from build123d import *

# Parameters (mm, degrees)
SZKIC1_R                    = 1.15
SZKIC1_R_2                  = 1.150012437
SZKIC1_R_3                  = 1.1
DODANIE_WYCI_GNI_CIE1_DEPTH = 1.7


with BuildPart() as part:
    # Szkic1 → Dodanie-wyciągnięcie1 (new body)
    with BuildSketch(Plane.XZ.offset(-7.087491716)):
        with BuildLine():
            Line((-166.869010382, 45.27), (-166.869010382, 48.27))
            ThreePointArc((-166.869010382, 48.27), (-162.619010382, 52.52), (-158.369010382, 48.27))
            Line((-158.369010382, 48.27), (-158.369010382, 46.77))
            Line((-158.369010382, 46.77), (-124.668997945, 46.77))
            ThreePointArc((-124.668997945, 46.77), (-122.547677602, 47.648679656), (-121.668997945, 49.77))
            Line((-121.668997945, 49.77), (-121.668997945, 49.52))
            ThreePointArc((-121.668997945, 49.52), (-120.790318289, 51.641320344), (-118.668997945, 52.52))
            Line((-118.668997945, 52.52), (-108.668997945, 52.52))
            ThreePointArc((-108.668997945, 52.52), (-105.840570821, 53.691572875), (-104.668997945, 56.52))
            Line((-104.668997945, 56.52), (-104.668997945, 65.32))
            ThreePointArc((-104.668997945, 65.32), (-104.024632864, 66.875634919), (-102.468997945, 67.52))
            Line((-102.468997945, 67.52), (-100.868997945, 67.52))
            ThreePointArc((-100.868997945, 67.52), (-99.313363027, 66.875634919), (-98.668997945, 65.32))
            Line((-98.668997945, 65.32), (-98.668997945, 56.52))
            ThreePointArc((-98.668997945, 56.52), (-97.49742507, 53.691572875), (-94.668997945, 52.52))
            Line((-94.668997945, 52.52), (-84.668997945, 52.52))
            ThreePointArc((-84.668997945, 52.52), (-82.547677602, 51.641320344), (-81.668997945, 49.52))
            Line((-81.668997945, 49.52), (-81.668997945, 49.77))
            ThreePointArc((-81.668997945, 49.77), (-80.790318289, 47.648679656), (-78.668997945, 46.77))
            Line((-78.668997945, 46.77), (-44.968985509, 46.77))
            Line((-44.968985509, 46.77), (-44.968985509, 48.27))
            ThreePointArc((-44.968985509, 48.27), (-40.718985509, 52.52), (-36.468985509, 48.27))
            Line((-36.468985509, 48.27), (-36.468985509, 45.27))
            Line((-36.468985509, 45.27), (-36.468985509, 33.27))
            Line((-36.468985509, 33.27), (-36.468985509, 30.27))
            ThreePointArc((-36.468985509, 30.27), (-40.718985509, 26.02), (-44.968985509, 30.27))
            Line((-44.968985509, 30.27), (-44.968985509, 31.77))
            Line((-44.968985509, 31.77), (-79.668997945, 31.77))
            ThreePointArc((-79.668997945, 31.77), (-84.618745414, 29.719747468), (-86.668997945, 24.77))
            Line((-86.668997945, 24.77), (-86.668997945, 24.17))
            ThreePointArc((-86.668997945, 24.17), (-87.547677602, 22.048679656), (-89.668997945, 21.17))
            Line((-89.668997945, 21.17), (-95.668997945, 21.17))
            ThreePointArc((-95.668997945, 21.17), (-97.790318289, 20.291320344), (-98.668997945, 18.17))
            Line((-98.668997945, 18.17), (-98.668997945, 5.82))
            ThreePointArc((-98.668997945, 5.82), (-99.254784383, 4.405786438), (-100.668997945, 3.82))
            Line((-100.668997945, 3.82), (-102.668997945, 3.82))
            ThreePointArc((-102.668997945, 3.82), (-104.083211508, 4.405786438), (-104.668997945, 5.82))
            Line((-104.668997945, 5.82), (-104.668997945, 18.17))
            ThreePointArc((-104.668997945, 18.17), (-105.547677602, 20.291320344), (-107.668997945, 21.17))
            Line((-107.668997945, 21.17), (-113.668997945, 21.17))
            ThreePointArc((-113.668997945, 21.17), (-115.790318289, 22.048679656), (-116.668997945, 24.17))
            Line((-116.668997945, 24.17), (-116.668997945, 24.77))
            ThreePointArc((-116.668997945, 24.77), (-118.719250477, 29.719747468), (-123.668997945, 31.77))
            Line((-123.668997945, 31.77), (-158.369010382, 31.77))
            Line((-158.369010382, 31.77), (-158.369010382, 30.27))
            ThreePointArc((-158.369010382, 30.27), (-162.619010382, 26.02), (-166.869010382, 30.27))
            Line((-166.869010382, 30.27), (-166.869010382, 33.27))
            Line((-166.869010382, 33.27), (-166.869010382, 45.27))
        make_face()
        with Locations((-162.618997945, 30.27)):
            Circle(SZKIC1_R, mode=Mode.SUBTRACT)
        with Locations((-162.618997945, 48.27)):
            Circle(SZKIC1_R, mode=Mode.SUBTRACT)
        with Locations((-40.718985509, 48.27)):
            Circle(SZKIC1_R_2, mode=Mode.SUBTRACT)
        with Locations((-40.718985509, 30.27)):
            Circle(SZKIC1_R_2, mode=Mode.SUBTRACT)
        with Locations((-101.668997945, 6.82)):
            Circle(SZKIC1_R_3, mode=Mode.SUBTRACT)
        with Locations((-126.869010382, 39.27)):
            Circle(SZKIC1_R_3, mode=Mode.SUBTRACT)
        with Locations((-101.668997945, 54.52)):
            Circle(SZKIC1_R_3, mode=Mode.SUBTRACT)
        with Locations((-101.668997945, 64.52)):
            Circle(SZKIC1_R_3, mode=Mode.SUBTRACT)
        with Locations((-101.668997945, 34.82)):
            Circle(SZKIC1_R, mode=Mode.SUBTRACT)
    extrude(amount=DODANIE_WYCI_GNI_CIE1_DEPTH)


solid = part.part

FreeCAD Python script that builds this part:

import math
import FreeCAD as App
import Part
import Sketcher

doc = App.newDocument("Part")
body = doc.addObject("PartDesign::Body", "Body")

# Sketch on XZ plane
sketch1 = body.newObject("Sketcher::SketchObject", "Sketch")
sketch1.AttachmentSupport = (doc.getObject("XZ_Plane"), [""])
sketch1.MapMode = "FlatFace"
sketch1.AttachmentOffset = App.Placement(App.Vector(0, 0, -7.087492), App.Rotation())
sketch1.addGeometry([
    Part.ArcOfCircle(Part.Circle(App.Vector(-162.61901, 48.27, 0), App.Vector(0, 0, 1), 4.25), math.radians(0), math.radians(180)),  # 0
    Part.LineSegment(App.Vector(-166.86901, 48.27, 0), App.Vector(-166.86901, 30.27, 0)),  # 1
    Part.ArcOfCircle(Part.Circle(App.Vector(-162.61901, 30.27, 0), App.Vector(0, 0, 1), 4.25), math.radians(180), math.radians(360)),  # 2
    Part.LineSegment(App.Vector(-158.36901, 30.27, 0), App.Vector(-158.36901, 31.77, 0)),  # 3
    Part.LineSegment(App.Vector(-158.36901, 31.77, 0), App.Vector(-123.668998, 31.77, 0)),  # 4
    Part.ArcOfCircle(Part.Circle(App.Vector(-123.668998, 24.77, 0), App.Vector(0, 0, 1), 7), math.radians(0), math.radians(90)),  # 5
    Part.LineSegment(App.Vector(-116.668998, 24.77, 0), App.Vector(-116.668998, 24.17, 0)),  # 6
    Part.ArcOfCircle(Part.Circle(App.Vector(-113.668998, 24.17, 0), App.Vector(0, 0, 1), 3), math.radians(180), math.radians(270)),  # 7
    Part.LineSegment(App.Vector(-113.668998, 21.17, 0), App.Vector(-107.668998, 21.17, 0)),  # 8
    Part.ArcOfCircle(Part.Circle(App.Vector(-107.668998, 18.17, 0), App.Vector(0, 0, 1), 3), math.radians(0), math.radians(90)),  # 9
    Part.LineSegment(App.Vector(-104.668998, 18.17, 0), App.Vector(-104.668998, 5.82, 0)),  # 10
    Part.ArcOfCircle(Part.Circle(App.Vector(-102.668998, 5.82, 0), App.Vector(0, 0, 1), 2), math.radians(180), math.radians(270)),  # 11
    Part.LineSegment(App.Vector(-102.668998, 3.82, 0), App.Vector(-100.668998, 3.82, 0)),  # 12
    Part.ArcOfCircle(Part.Circle(App.Vector(-100.668998, 5.82, 0), App.Vector(0, 0, 1), 2), math.radians(-90), math.radians(0)),  # 13
    Part.LineSegment(App.Vector(-98.668998, 5.82, 0), App.Vector(-98.668998, 18.17, 0)),  # 14
    Part.ArcOfCircle(Part.Circle(App.Vector(-95.668998, 18.17, 0), App.Vector(0, 0, 1), 3), math.radians(90), math.radians(180)),  # 15
    Part.LineSegment(App.Vector(-95.668998, 21.17, 0), App.Vector(-89.668998, 21.17, 0)),  # 16
    Part.ArcOfCircle(Part.Circle(App.Vector(-89.668998, 24.17, 0), App.Vector(0, 0, 1), 3), math.radians(-90), math.radians(0)),  # 17
    Part.LineSegment(App.Vector(-86.668998, 24.17, 0), App.Vector(-86.668998, 24.77, 0)),  # 18
    Part.ArcOfCircle(Part.Circle(App.Vector(-79.668998, 24.77, 0), App.Vector(0, 0, 1), 7), math.radians(90), math.radians(180)),  # 19
    Part.LineSegment(App.Vector(-79.668998, 31.77, 0), App.Vector(-44.968986, 31.77, 0)),  # 20
    Part.LineSegment(App.Vector(-44.968986, 31.77, 0), App.Vector(-44.968986, 30.27, 0)),  # 21
    Part.ArcOfCircle(Part.Circle(App.Vector(-40.718986, 30.27, 0), App.Vector(0, 0, 1), 4.25), math.radians(180), math.radians(360)),  # 22
    Part.LineSegment(App.Vector(-36.468986, 30.27, 0), App.Vector(-36.468986, 48.27, 0)),  # 23
    Part.ArcOfCircle(Part.Circle(App.Vector(-40.718986, 48.27, 0), App.Vector(0, 0, 1), 4.25), math.radians(0), math.radians(180)),  # 24
    Part.LineSegment(App.Vector(-44.968986, 48.27, 0), App.Vector(-44.968986, 46.77, 0)),  # 25
    Part.LineSegment(App.Vector(-44.968986, 46.77, 0), App.Vector(-78.668998, 46.77, 0)),  # 26
    Part.ArcOfCircle(Part.Circle(App.Vector(-78.668998, 49.77, 0), App.Vector(0, 0, 1), 3), math.radians(180), math.radians(270)),  # 27
    Part.LineSegment(App.Vector(-81.668998, 49.77, 0), App.Vector(-81.668998, 49.52, 0)),  # 28
    Part.ArcOfCircle(Part.Circle(App.Vector(-84.668998, 49.52, 0), App.Vector(0, 0, 1), 3), math.radians(0), math.radians(90)),  # 29
    Part.LineSegment(App.Vector(-84.668998, 52.52, 0), App.Vector(-94.668998, 52.52, 0)),  # 30
    Part.ArcOfCircle(Part.Circle(App.Vector(-94.668998, 56.52, 0), App.Vector(0, 0, 1), 4), math.radians(180), math.radians(270)),  # 31
    Part.LineSegment(App.Vector(-98.668998, 56.52, 0), App.Vector(-98.668998, 65.32, 0)),  # 32
    Part.ArcOfCircle(Part.Circle(App.Vector(-100.868998, 65.32, 0), App.Vector(0, 0, 1), 2.2), math.radians(0), math.radians(90)),  # 33
    Part.LineSegment(App.Vector(-100.868998, 67.52, 0), App.Vector(-102.468998, 67.52, 0)),  # 34
    Part.ArcOfCircle(Part.Circle(App.Vector(-102.468998, 65.32, 0), App.Vector(0, 0, 1), 2.2), math.radians(90), math.radians(180)),  # 35
    Part.LineSegment(App.Vector(-104.668998, 65.32, 0), App.Vector(-104.668998, 56.52, 0)),  # 36
    Part.ArcOfCircle(Part.Circle(App.Vector(-108.668998, 56.52, 0), App.Vector(0, 0, 1), 4), math.radians(-90), math.radians(0)),  # 37
    Part.LineSegment(App.Vector(-108.668998, 52.52, 0), App.Vector(-118.668998, 52.52, 0)),  # 38
    Part.ArcOfCircle(Part.Circle(App.Vector(-118.668998, 49.52, 0), App.Vector(0, 0, 1), 3), math.radians(90), math.radians(180)),  # 39
    Part.LineSegment(App.Vector(-121.668998, 49.52, 0), App.Vector(-121.668998, 49.77, 0)),  # 40
    Part.ArcOfCircle(Part.Circle(App.Vector(-124.668998, 49.77, 0), App.Vector(0, 0, 1), 3), math.radians(-90), math.radians(0)),  # 41
    Part.LineSegment(App.Vector(-124.668998, 46.77, 0), App.Vector(-158.36901, 46.77, 0)),  # 42
    Part.LineSegment(App.Vector(-158.36901, 46.77, 0), App.Vector(-158.36901, 48.27, 0)),  # 43
    Part.Circle(App.Vector(-40.718986, 30.27, 0), App.Vector(0, 0, 1), 1.150012),  # 44
    Part.Circle(App.Vector(-101.668998, 6.82, 0), App.Vector(0, 0, 1), 1.1),  # 45
    Part.Circle(App.Vector(-101.668998, 34.82, 0), App.Vector(0, 0, 1), 1.15),  # 46
    Part.Circle(App.Vector(-162.618998, 30.27, 0), App.Vector(0, 0, 1), 1.15),  # 47
    Part.Circle(App.Vector(-40.718986, 48.27, 0), App.Vector(0, 0, 1), 1.150012),  # 48
    Part.Circle(App.Vector(-126.86901, 39.27, 0), App.Vector(0, 0, 1), 1.1),  # 49
    Part.Circle(App.Vector(-162.618998, 48.27, 0), App.Vector(0, 0, 1), 1.15),  # 50
    Part.Circle(App.Vector(-101.668998, 54.52, 0), App.Vector(0, 0, 1), 1.1),  # 51
    Part.Circle(App.Vector(-101.668998, 64.52, 0), App.Vector(0, 0, 1), 1.1),  # 52
], False)
sketch1.addConstraint([
    Sketcher.Constraint("Tangent", 0, 2, 1, 1),
    Sketcher.Constraint("Tangent", 1, 2, 2, 1),
    Sketcher.Constraint("Tangent", 2, 2, 3, 1),
    Sketcher.Constraint("Coincident", 3, 2, 4, 1),
    Sketcher.Constraint("Tangent", 4, 2, 5, 2),
    Sketcher.Constraint("Tangent", 5, 1, 6, 1),
    Sketcher.Constraint("Tangent", 6, 2, 7, 1),
    Sketcher.Constraint("Tangent", 7, 2, 8, 1),
    Sketcher.Constraint("Tangent", 8, 2, 9, 2),
    Sketcher.Constraint("Tangent", 9, 1, 10, 1),
    Sketcher.Constraint("Tangent", 10, 2, 11, 1),
    Sketcher.Constraint("Tangent", 11, 2, 12, 1),
    Sketcher.Constraint("Tangent", 12, 2, 13, 1),
    Sketcher.Constraint("Tangent", 13, 2, 14, 1),
    Sketcher.Constraint("Tangent", 14, 2, 15, 2),
    Sketcher.Constraint("Tangent", 15, 1, 16, 1),
    Sketcher.Constraint("Tangent", 16, 2, 17, 1),
    Sketcher.Constraint("Tangent", 17, 2, 18, 1),
    Sketcher.Constraint("Tangent", 18, 2, 19, 2),
    Sketcher.Constraint("Tangent", 19, 1, 20, 1),
    Sketcher.Constraint("Coincident", 20, 2, 21, 1),
    Sketcher.Constraint("Tangent", 21, 2, 22, 1),
    Sketcher.Constraint("Tangent", 22, 2, 23, 1),
    Sketcher.Constraint("Tangent", 23, 2, 24, 1),
    Sketcher.Constraint("Tangent", 24, 2, 25, 1),
    Sketcher.Constraint("Coincident", 25, 2, 26, 1),
    Sketcher.Constraint("Tangent", 26, 2, 27, 2),
    Sketcher.Constraint("Tangent", 27, 1, 28, 1),
    Sketcher.Constraint("Tangent", 28, 2, 29, 1),
    Sketcher.Constraint("Tangent", 29, 2, 30, 1),
    Sketcher.Constraint("Tangent", 30, 2, 31, 2),
    Sketcher.Constraint("Tangent", 31, 1, 32, 1),
    Sketcher.Constraint("Tangent", 32, 2, 33, 1),
    Sketcher.Constraint("Tangent", 33, 2, 34, 1),
    Sketcher.Constraint("Tangent", 34, 2, 35, 1),
    Sketcher.Constraint("Tangent", 35, 2, 36, 1),
    Sketcher.Constraint("Tangent", 36, 2, 37, 2),
    Sketcher.Constraint("Tangent", 37, 1, 38, 1),
    Sketcher.Constraint("Tangent", 38, 2, 39, 1),
    Sketcher.Constraint("Tangent", 39, 2, 40, 1),
    Sketcher.Constraint("Tangent", 40, 2, 41, 2),
    Sketcher.Constraint("Tangent", 41, 1, 42, 1),
    Sketcher.Constraint("Coincident", 42, 2, 43, 1),
    Sketcher.Constraint("Tangent", 43, 2, 0, 1),
    Sketcher.Constraint("Vertical", 1),
    Sketcher.Constraint("Vertical", 3),
    Sketcher.Constraint("Horizontal", 4),
    Sketcher.Constraint("Vertical", 6),
    Sketcher.Constraint("Horizontal", 8),
    Sketcher.Constraint("Vertical", 10),
    Sketcher.Constraint("Horizontal", 12),
    Sketcher.Constraint("Vertical", 14),
    Sketcher.Constraint("Horizontal", 16),
    Sketcher.Constraint("Vertical", 18),
    Sketcher.Constraint("Horizontal", 20),
    Sketcher.Constraint("Vertical", 21),
    Sketcher.Constraint("Vertical", 23),
    Sketcher.Constraint("Vertical", 25),
    Sketcher.Constraint("Horizontal", 26),
    Sketcher.Constraint("Vertical", 28),
    Sketcher.Constraint("Horizontal", 30),
    Sketcher.Constraint("Vertical", 32),
    Sketcher.Constraint("Horizontal", 34),
    Sketcher.Constraint("Vertical", 36),
    Sketcher.Constraint("Horizontal", 38),
    Sketcher.Constraint("Vertical", 40),
    Sketcher.Constraint("Horizontal", 42),
    Sketcher.Constraint("Vertical", 43),
    Sketcher.Constraint("Coincident", 44, 3, 22, 3),
    Sketcher.Constraint("Coincident", 48, 3, 24, 3),
    Sketcher.Constraint("Equal", 0, 2),
    Sketcher.Constraint("Equal", 7, 9),
    Sketcher.Constraint("Equal", 11, 13),
    Sketcher.Constraint("Equal", 9, 15),
    Sketcher.Constraint("Equal", 15, 17),
    Sketcher.Constraint("Equal", 5, 19),
    Sketcher.Constraint("Equal", 2, 22),
    Sketcher.Constraint("Equal", 22, 24),
    Sketcher.Constraint("Equal", 17, 27),
    Sketcher.Constraint("Equal", 27, 29),
    Sketcher.Constraint("Equal", 33, 35),
    Sketcher.Constraint("Equal", 31, 37),
    Sketcher.Constraint("Equal", 29, 39),
    Sketcher.Constraint("Equal", 39, 41),
    Sketcher.Constraint("Equal", 46, 47),
    Sketcher.Constraint("Equal", 44, 48),
    Sketcher.Constraint("Equal", 45, 49),
    Sketcher.Constraint("Equal", 47, 50),
    Sketcher.Constraint("Equal", 49, 51),
    Sketcher.Constraint("Equal", 51, 52),
    Sketcher.Constraint("Horizontal", 9, 3, 15, 3),
    Sketcher.Constraint("Horizontal", 5, 3, 19, 3),
    Sketcher.Constraint("Horizontal", 2, 3, 22, 3),
    Sketcher.Constraint("Horizontal", 0, 3, 24, 3),
    Sketcher.Constraint("Horizontal", 31, 3, 37, 3),
    Sketcher.Constraint("Horizontal", 27, 3, 41, 3),
    Sketcher.Constraint("Horizontal", 44, 3, 47, 3),
    Sketcher.Constraint("Horizontal", 48, 3, 50, 3),
    Sketcher.Constraint("Vertical", 45, 3, 46, 3),
    Sketcher.Constraint("Vertical", 47, 3, 50, 3),
    Sketcher.Constraint("Vertical", 46, 3, 51, 3),
    Sketcher.Constraint("Vertical", 51, 3, 52, 3),
    Sketcher.Constraint("Vertical", 14, 2, 31, 1),
    Sketcher.Constraint("Vertical", 10, 2, 35, 2),
    Sketcher.Constraint("Equal", 8, 16),
    Sketcher.Constraint("Equal", 4, 20),
    Sketcher.Constraint("Equal", 30, 38),
    Sketcher.Constraint("Equal", 21, 25),
    Sketcher.Constraint("Radius", 5, 7.0),
    Sketcher.Constraint("Radius", 7, 3.0),
    Sketcher.Constraint("Radius", 11, 2.0),
    Sketcher.Constraint("Radius", 31, 4.0),
    Sketcher.Constraint("Diameter", 45, 2.2),
    Sketcher.Constraint("Diameter", 46, 2.3),
    Sketcher.Constraint("Radius", 33, 2.2),
    Sketcher.Constraint("DistanceX", 8, 1, 8, 2, 6.0),
    Sketcher.Constraint("DistanceX", 12, 1, 12, 2, 2.0),
    Sketcher.Constraint("DistanceX", 30, 2, 30, 1, 10.0),
    Sketcher.Constraint("DistanceY", 1, 2, 1, 1, 18.0),
    Sketcher.Constraint("Radius", 0, 4.25),
    Sketcher.Constraint("DistanceY", 3, 1, 3, 2, 1.5),
    Sketcher.Constraint("DistanceY", 6, 2, 6, 1, 0.6),
    Sketcher.Constraint("DistanceY", 32, 1, 32, 2, 8.8),
    Sketcher.Constraint("DistanceY", 10, 2, 10, 1, 12.35),
    Sketcher.Constraint("DistanceY", 28, 2, 28, 1, 0.25),
    Sketcher.Constraint("DistanceY", -1, 1, 0, 3, 48.27),
    Sketcher.Constraint("DistanceY", -1, 1, 45, 3, 6.82),
    Sketcher.Constraint("DistanceY", -1, 1, 46, 3, 34.82),
    Sketcher.Constraint("DistanceY", -1, 1, 49, 3, 39.27),
    Sketcher.Constraint("DistanceY", -1, 1, 51, 3, 54.52),
    Sketcher.Constraint("DistanceY", -1, 1, 52, 3, 64.52),
    Sketcher.Constraint("Diameter", 44, 2.300025),
    Sketcher.Constraint("DistanceX", 4, 1, 4, 2, 34.700012),
    Sketcher.Constraint("DistanceX", 0, 3, -1, 1, 162.61901),
    Sketcher.Constraint("DistanceX", 49, 3, -1, 1, 126.86901),
    Sketcher.Constraint("DistanceX", 45, 3, -1, 1, 101.668998),
    Sketcher.Constraint("DistanceX", 47, 3, -1, 1, 162.618998),
])
pad1 = body.newObject("PartDesign::Pad", "Pad")
pad1.Profile = sketch1
pad1.Length = 1.7

doc.recompute()
